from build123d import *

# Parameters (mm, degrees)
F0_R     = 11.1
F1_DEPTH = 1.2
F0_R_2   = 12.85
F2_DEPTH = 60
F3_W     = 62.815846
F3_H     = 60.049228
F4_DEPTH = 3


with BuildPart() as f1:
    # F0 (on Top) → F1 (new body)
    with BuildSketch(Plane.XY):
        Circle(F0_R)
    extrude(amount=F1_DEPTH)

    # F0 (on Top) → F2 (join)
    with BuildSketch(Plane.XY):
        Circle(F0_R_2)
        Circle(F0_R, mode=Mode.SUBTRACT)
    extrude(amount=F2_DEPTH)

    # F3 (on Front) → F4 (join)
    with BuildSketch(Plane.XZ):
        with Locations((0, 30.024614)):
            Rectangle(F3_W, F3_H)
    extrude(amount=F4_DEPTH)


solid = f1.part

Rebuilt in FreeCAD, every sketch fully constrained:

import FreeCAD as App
import Part
import Sketcher

doc = App.newDocument("Part")
body = doc.addObject("PartDesign::Body", "Body")

# Sketch on XY plane
sketch1 = body.newObject("Sketcher::SketchObject", "Sketch")
sketch1.AttachmentSupport = (doc.getObject("XY_Plane"), [""])
sketch1.MapMode = "FlatFace"
sketch1.addGeometry(Part.Circle(App.Vector(0, 0, 0), App.Vector(0, 0, 1), 11.1), False)
sketch1.addConstraint([
    Sketcher.Constraint("Coincident", 0, 3, -1, 1),
    Sketcher.Constraint("Diameter", 0, 22.2),
])
pad1 = body.newObject("PartDesign::Pad", "Pad")
pad1.Profile = sketch1
pad1.Length = 1.2

# Sketch on XY plane
sketch2 = body.newObject("Sketcher::SketchObject", "Sketch001")
sketch2.AttachmentSupport = (doc.getObject("XY_Plane"), [""])
sketch2.MapMode = "FlatFace"
sketch2.addGeometry([
    Part.Circle(App.Vector(0, 0, 0), App.Vector(0, 0, 1), 12.85),
    Part.Circle(App.Vector(0, 0, 0), App.Vector(0, 0, 1), 11.1),
], False)
sketch2.addConstraint([
    Sketcher.Constraint("Coincident", 0, 3, -1, 1),
    Sketcher.Constraint("Coincident", 1, 3, -1, 1),
    Sketcher.Constraint("Diameter", 0, 25.7),
    Sketcher.Constraint("Diameter", 1, 22.2),
])
pad2 = body.newObject("PartDesign::Pad", "Pad001")
pad2.Profile = sketch2
pad2.Length = 60

# Sketch on XZ plane
sketch3 = body.newObject("Sketcher::SketchObject", "Sketch002")
sketch3.AttachmentSupport = (doc.getObject("XZ_Plane"), [""])
sketch3.MapMode = "FlatFace"
sketch3.addGeometry([
    Part.LineSegment(App.Vector(-31.407923, 60.049228, 0), App.Vector(-31.407923, 0, 0)),
    Part.LineSegment(App.Vector(-31.407923, 0, 0), App.Vector(31.407923, 0, 0)),
    Part.LineSegment(App.Vector(31.407923, 0, 0), App.Vector(31.407923, 60.049228, 0)),
    Part.LineSegment(App.Vector(31.407923, 60.049228, 0), App.Vector(-31.407923, 60.049228, 0)),
], False)
sketch3.addConstraint([
    Sketcher.Constraint("Coincident", 0, 2, 1, 1),
    Sketcher.Constraint("Coincident", 1, 2, 2, 1),
    Sketcher.Constraint("Coincident", 2, 2, 3, 1),
    Sketcher.Constraint("Coincident", 3, 2, 0, 1),
    Sketcher.Constraint("Vertical", 0),
    Sketcher.Constraint("Horizontal", 1),
    Sketcher.Constraint("Vertical", 2),
    Sketcher.Constraint("Horizontal", 3),
    Sketcher.Constraint("Symmetric", 0, 2, 1, 2, -1, 1),
    Sketcher.Constraint("DistanceX", 1, 1, 1, 2, 62.815846),
    Sketcher.Constraint("DistanceY", 0, 2, 0, 1, 60.049228),
])
pad3 = body.newObject("PartDesign::Pad", "Pad002")
pad3.Profile = sketch3
pad3.Length = 3

doc.recompute()
